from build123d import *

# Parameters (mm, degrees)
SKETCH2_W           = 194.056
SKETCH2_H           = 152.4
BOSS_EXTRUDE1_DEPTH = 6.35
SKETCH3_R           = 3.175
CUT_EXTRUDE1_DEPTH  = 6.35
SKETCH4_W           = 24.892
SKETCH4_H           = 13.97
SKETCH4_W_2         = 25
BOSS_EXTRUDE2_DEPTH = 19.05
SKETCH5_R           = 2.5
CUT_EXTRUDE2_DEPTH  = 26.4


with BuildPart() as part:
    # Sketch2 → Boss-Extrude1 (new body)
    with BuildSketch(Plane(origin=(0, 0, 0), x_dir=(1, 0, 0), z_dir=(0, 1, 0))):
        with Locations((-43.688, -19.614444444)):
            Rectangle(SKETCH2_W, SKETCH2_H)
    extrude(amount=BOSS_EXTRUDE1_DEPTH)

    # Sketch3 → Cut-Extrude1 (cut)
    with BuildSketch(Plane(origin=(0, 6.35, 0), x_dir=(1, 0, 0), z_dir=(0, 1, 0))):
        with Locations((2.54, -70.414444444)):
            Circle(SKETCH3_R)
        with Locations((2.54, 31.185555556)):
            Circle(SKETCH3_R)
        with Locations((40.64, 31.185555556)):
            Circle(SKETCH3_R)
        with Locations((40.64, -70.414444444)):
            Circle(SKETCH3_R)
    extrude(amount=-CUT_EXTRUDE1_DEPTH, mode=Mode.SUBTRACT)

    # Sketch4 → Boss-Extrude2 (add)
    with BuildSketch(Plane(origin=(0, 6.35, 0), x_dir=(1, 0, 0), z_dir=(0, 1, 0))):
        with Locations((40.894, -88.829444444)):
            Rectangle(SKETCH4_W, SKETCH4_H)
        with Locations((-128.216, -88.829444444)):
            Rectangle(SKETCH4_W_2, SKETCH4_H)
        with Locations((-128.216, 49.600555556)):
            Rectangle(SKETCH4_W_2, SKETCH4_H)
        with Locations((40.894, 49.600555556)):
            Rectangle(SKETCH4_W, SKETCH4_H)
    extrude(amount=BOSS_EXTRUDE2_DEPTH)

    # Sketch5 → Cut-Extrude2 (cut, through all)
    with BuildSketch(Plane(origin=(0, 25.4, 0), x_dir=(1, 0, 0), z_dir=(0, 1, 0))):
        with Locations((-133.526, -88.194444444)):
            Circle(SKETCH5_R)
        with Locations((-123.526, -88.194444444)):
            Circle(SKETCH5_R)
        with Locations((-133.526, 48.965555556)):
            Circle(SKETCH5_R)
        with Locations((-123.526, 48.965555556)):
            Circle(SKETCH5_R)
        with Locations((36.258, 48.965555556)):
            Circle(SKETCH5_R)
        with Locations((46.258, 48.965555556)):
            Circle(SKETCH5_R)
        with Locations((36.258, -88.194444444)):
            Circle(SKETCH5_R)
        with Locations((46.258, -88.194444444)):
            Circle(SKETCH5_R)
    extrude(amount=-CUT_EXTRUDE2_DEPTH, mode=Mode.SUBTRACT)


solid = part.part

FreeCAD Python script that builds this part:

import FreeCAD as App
import Part
import Sketcher
Q = App.Units.Quantity

doc = App.newDocument("Part")
params = doc.addObject("Spreadsheet::Sheet", "Params")
for row, (alias, value) in enumerate([
    ("sketch1_height", "6 in"),
    ("sketch1_width", "7.64 in"),
    ("pad1_length", "0.25 in"),
    ("sketch2_diameter", "0.25 in"),
    ("pocket1_length", "0.25 in"),
    ("sketch3_width", "0.98 in"),
    ("sketch3_height", "0.55 in"),
    ("pad2_length", "0.75 in"),
], start=1):
    params.set(f"A{row}", alias)
    params.set(f"B{row}", "=" + value)
    params.setAlias(f"B{row}", alias)

body = doc.addObject("PartDesign::Body", "Body")

sketch1 = body.newObject("Sketcher::SketchObject", "Sketch")
sketch1.AttachmentSupport = (doc.getObject("XZ_Plane"), [""])
sketch1.MapMode = "FlatFace"
sketch1.addGeometry(Part.LineSegment(App.Vector(-141, -57, 0), App.Vector(-141, 96, 0)), False)
sketch1.addGeometry(Part.LineSegment(App.Vector(-141, 96, 0), App.Vector(53, 96, 0)), False)
sketch1.addGeometry(Part.LineSegment(App.Vector(53, 96, 0), App.Vector(53, -57, 0)), False)
sketch1.addGeometry(Part.LineSegment(App.Vector(53, -57, 0), App.Vector(-141, -57, 0)), False)
sketch1.addConstraint(Sketcher.Constraint("Coincident", 0, 2, 1, 1))
sketch1.addConstraint(Sketcher.Constraint("Coincident", 1, 2, 2, 1))
sketch1.addConstraint(Sketcher.Constraint("Coincident", 2, 2, 3, 1))
sketch1.addConstraint(Sketcher.Constraint("Coincident", 3, 2, 0, 1))
sketch1.addConstraint(Sketcher.Constraint("Vertical", 0))
sketch1.addConstraint(Sketcher.Constraint("Horizontal", 1))
sketch1.addConstraint(Sketcher.Constraint("Vertical", 2))
sketch1.addConstraint(Sketcher.Constraint("Horizontal", 3))
sketch1.addConstraint(Sketcher.Constraint("DistanceY", 0, 1, 0, 2, Q("6 in")))
sketch1.addConstraint(Sketcher.Constraint("DistanceX", 1, 1, 1, 2, Q("7.64 in")))
sketch1.addConstraint(Sketcher.Constraint("DistanceX", -1, 1, 1, 2, Q("2.1 in")))
sketch1.addConstraint(Sketcher.Constraint("DistanceY", -1, 1, 0, 2, 95.814444))
sketch1.setExpression("Constraints[8]", "Params.sketch1_height")
sketch1.setExpression("Constraints[9]", "Params.sketch1_width")
pad1 = body.newObject("PartDesign::Pad", "Pad")
pad1.Profile = sketch1
pad1.setExpression("Length", "Params.pad1_length")
pad1.Reversed = True

sketch2 = body.newObject("Sketcher::SketchObject", "Sketch001")
sketch2.AttachmentSupport = (doc.getObject("XZ_Plane"), [""])
sketch2.MapMode = "FlatFace"
sketch2.AttachmentOffset = App.Placement(App.Vector(0, 0, -0.25 * 25.4), App.Rotation())
sketch2.addGeometry(Part.Circle(App.Vector(2.5, 70.4, 0), App.Vector(0, 0, 1), 3.2), False)
sketch2.addGeometry(Part.Circle(App.Vector(2.5, -31.2, 0), App.Vector(0, 0, 1), 3.2), False)
sketch2.addGeometry(Part.Circle(App.Vector(40.6, -31.2, 0), App.Vector(0, 0, 1), 3.2), False)
sketch2.addGeometry(Part.Circle(App.Vector(40.6, 70.4, 0), App.Vector(0, 0, 1), 3.2), False)
sketch2.addConstraint(Sketcher.Constraint("Equal", 0, 1))
sketch2.addConstraint(Sketcher.Constraint("Equal", 1, 2))
sketch2.addConstraint(Sketcher.Constraint("Equal", 2, 3))
sketch2.addConstraint(Sketcher.Constraint("Horizontal", 1, 3, 2, 3))
sketch2.addConstraint(Sketcher.Constraint("Horizontal", 0, 3, 3, 3))
sketch2.addConstraint(Sketcher.Constraint("Vertical", 0, 3, 1, 3))
sketch2.addConstraint(Sketcher.Constraint("Vertical", 2, 3, 3, 3))
sketch2.addConstraint(Sketcher.Constraint("Diameter", 0, Q("0.25 in")))
sketch2.addConstraint(Sketcher.Constraint("DistanceY", 1, 3, 0, 3, Q("4 in")))
sketch2.addConstraint(Sketcher.Constraint("DistanceX", -1, 1, 0, 3, Q("0.1 in")))
sketch2.addConstraint(Sketcher.Constraint("DistanceX", -1, 1, 2, 3, Q("1.6 in")))
sketch2.addConstraint(Sketcher.Constraint("DistanceY", -1, 1, 0, 3, 70.414444))
sketch2.setExpression("Constraints[7]", "Params.sketch2_diameter")
pocket1 = body.newObject("PartDesign::Pocket", "Pocket")
pocket1.Profile = sketch2
pocket1.setExpression("Length", "Params.pocket1_length")
pocket1.Reversed = True

sketch3 = body.newObject("Sketcher::SketchObject", "Sketch002")
sketch3.AttachmentSupport = (doc.getObject("XZ_Plane"), [""])
sketch3.MapMode = "FlatFace"
sketch3.AttachmentOffset = App.Placement(App.Vector(0, 0, -0.25 * 25.4), App.Rotation())
sketch3.addGeometry(Part.LineSegment(App.Vector(28, 82, 0), App.Vector(28, 96, 0)), False)
sketch3.addGeometry(Part.LineSegment(App.Vector(28, 96, 0), App.Vector(53, 96, 0)), False)
sketch3.addGeometry(Part.LineSegment(App.Vector(53, 96, 0), App.Vector(53, 82, 0)), False)
sketch3.addGeometry(Part.LineSegment(App.Vector(53, 82, 0), App.Vector(28, 82, 0)), False)
sketch3.addGeometry(Part.LineSegment(App.Vector(-141, 82, 0), App.Vector(-141, 96, 0)), False)
sketch3.addGeometry(Part.LineSegment(App.Vector(-141, 96, 0), App.Vector(-116, 96, 0)), False)
sketch3.addGeometry(Part.LineSegment(App.Vector(-116, 96, 0), App.Vector(-116, 82, 0)), False)
sketch3.addGeometry(Part.LineSegment(App.Vector(-116, 82, 0), App.Vector(-141, 82, 0)), False)
sketch3.addGeometry(Part.LineSegment(App.Vector(-141, -57, 0), App.Vector(-141, -43, 0)), False)
sketch3.addGeometry(Part.LineSegment(App.Vector(-141, -43, 0), App.Vector(-116, -43, 0)), False)
sketch3.addGeometry(Part.LineSegment(App.Vector(-116, -43, 0), App.Vector(-116, -57, 0)), False)
sketch3.addGeometry(Part.LineSegment(App.Vector(-116, -57, 0), App.Vector(-141, -57, 0)), False)
sketch3.addGeometry(Part.LineSegment(App.Vector(28, -57, 0), App.Vector(28, -43, 0)), False)
sketch3.addGeometry(Part.LineSegment(App.Vector(28, -43, 0), App.Vector(53, -43, 0)), False)
sketch3.addGeometry(Part.LineSegment(App.Vector(53, -43, 0), App.Vector(53, -57, 0)), False)
sketch3.addGeometry(Part.LineSegment(App.Vector(53, -57, 0), App.Vector(28, -57, 0)), False)
sketch3.addConstraint(Sketcher.Constraint("Coincident", 0, 2, 1, 1))
sketch3.addConstraint(Sketcher.Constraint("Coincident", 1, 2, 2, 1))
sketch3.addConstraint(Sketcher.Constraint("Coincident", 2, 2, 3, 1))
sketch3.addConstraint(Sketcher.Constraint("Coincident", 3, 2, 0, 1))
sketch3.addConstraint(Sketcher.Constraint("Coincident", 4, 2, 5, 1))
sketch3.addConstraint(Sketcher.Constraint("Coincident", 5, 2, 6, 1))
sketch3.addConstraint(Sketcher.Constraint("Coincident", 6, 2, 7, 1))
sketch3.addConstraint(Sketcher.Constraint("Coincident", 7, 2, 4, 1))
sketch3.addConstraint(Sketcher.Constraint("Coincident", 8, 2, 9, 1))
sketch3.addConstraint(Sketcher.Constraint("Coincident", 9, 2, 10, 1))
sketch3.addConstraint(Sketcher.Constraint("Coincident", 10, 2, 11, 1))
sketch3.addConstraint(Sketcher.Constraint("Coincident", 11, 2, 8, 1))
sketch3.addConstraint(Sketcher.Constraint("Coincident", 12, 2, 13, 1))
sketch3.addConstraint(Sketcher.Constraint("Coincident", 13, 2, 14, 1))
sketch3.addConstraint(Sketcher.Constraint("Coincident", 14, 2, 15, 1))
sketch3.addConstraint(Sketcher.Constraint("Coincident", 15, 2, 12, 1))
sketch3.addConstraint(Sketcher.Constraint("Vertical", 0))
sketch3.addConstraint(Sketcher.Constraint("Horizontal", 1))
sketch3.addConstraint(Sketcher.Constraint("Vertical", 2))
sketch3.addConstraint(Sketcher.Constraint("Horizontal", 3))
sketch3.addConstraint(Sketcher.Constraint("Vertical", 4))
sketch3.addConstraint(Sketcher.Constraint("Horizontal", 5))
sketch3.addConstraint(Sketcher.Constraint("Vertical", 6))
sketch3.addConstraint(Sketcher.Constraint("Horizontal", 7))
sketch3.addConstraint(Sketcher.Constraint("Vertical", 8))
sketch3.addConstraint(Sketcher.Constraint("Horizontal", 9))
sketch3.addConstraint(Sketcher.Constraint("Vertical", 10))
sketch3.addConstraint(Sketcher.Constraint("Horizontal", 11))
sketch3.addConstraint(Sketcher.Constraint("Vertical", 12))
sketch3.addConstraint(Sketcher.Constraint("Horizontal", 13))
sketch3.addConstraint(Sketcher.Constraint("Vertical", 14))
sketch3.addConstraint(Sketcher.Constraint("Horizontal", 15))
sketch3.addConstraint(Sketcher.Constraint("Horizontal", 1, 2, 4, 2))
sketch3.addConstraint(Sketcher.Constraint("Horizontal", 3, 2, 6, 2))
sketch3.addConstraint(Sketcher.Constraint("Horizontal", 9, 2, 12, 2))
sketch3.addConstraint(Sketcher.Constraint("Horizontal", 11, 2, 14, 2))
sketch3.addConstraint(Sketcher.Constraint("Vertical", 7, 2, 8, 2))
sketch3.addConstraint(Sketcher.Constraint("Vertical", 6, 2, 9, 2))
sketch3.addConstraint(Sketcher.Constraint("Vertical", 3, 2, 12, 2))
sketch3.addConstraint(Sketcher.Constraint("Vertical", 2, 2, 13, 2))
sketch3.addConstraint(Sketcher.Constraint("Equal", 6, 8))
sketch3.addConstraint(Sketcher.Constraint("DistanceY", 10, 2, 5, 2, Q("6 in")))
sketch3.addConstraint(Sketcher.Constraint("DistanceX", 1, 1, 1, 2, Q("0.98 in")))
sketch3.addConstraint(Sketcher.Constraint("DistanceY", 0, 1, 0, 2, Q("0.55 in")))
sketch3.addConstraint(Sketcher.Constraint("DistanceX", -1, 1, 1, 2, Q("2.1 in")))
sketch3.addConstraint(Sketcher.Constraint("DistanceX", 4, 2, -1, 1, Q("5.54 in")))
sketch3.addConstraint(Sketcher.Constraint("DistanceX", 5, 1, 5, 2, 25.0))
sketch3.addConstraint(Sketcher.Constraint("DistanceY", -1, 1, 0, 2, 95.814444))
sketch3.setExpression("Constraints[42]", "Params.sketch3_width")
sketch3.setExpression("Constraints[43]", "Params.sketch3_height")
pad2 = body.newObject("PartDesign::Pad", "Pad001")
pad2.Profile = sketch3
pad2.setExpression("Length", "Params.pad2_length")
pad2.Reversed = True

sketch4 = body.newObject("Sketcher::SketchObject", "Sketch003")
sketch4.AttachmentSupport = (doc.getObject("XZ_Plane"), [""])
sketch4.MapMode = "FlatFace"
sketch4.AttachmentOffset = App.Placement(App.Vector(0, 0, -1 * 25.4), App.Rotation())
sketch4.addGeometry(Part.Circle(App.Vector(-133.5, 88.2, 0), App.Vector(0, 0, 1), 2.5), False)
sketch4.addGeometry(Part.Circle(App.Vector(-123.5, 88.2, 0), App.Vector(0, 0, 1), 2.5), False)
sketch4.addGeometry(Part.Circle(App.Vector(-133.5, -49, 0), App.Vector(0, 0, 1), 2.5), False)
sketch4.addGeometry(Part.Circle(App.Vector(-123.5, -49, 0), App.Vector(0, 0, 1), 2.5), False)
sketch4.addGeometry(Part.Circle(App.Vector(36.3, -49, 0), App.Vector(0, 0, 1), 2.5), False)
sketch4.addGeometry(Part.Circle(App.Vector(46.3, -49, 0), App.Vector(0, 0, 1), 2.5), False)
sketch4.addGeometry(Part.Circle(App.Vector(36.3, 88.2, 0), App.Vector(0, 0, 1), 2.5), False)
sketch4.addGeometry(Part.Circle(App.Vector(46.3, 88.2, 0), App.Vector(0, 0, 1), 2.5), False)
sketch4.addConstraint(Sketcher.Constraint("Equal", 0, 1))
sketch4.addConstraint(Sketcher.Constraint("Equal", 1, 2))
sketch4.addConstraint(Sketcher.Constraint("Equal", 2, 3))
sketch4.addConstraint(Sketcher.Constraint("Equal", 3, 4))
sketch4.addConstraint(Sketcher.Constraint("Equal", 4, 5))
sketch4.addConstraint(Sketcher.Constraint("Equal", 5, 6))
sketch4.addConstraint(Sketcher.Constraint("Equal", 6, 7))
sketch4.addConstraint(Sketcher.Constraint("Horizontal", 0, 3, 1, 3))
sketch4.addConstraint(Sketcher.Constraint("Horizontal", 2, 3, 3, 3))
sketch4.addConstraint(Sketcher.Constraint("Horizontal", 3, 3, 4, 3))
sketch4.addConstraint(Sketcher.Constraint("Horizontal", 4, 3, 5, 3))
sketch4.addConstraint(Sketcher.Constraint("Horizontal", 1, 3, 6, 3))
sketch4.addConstraint(Sketcher.Constraint("Horizontal", 6, 3, 7, 3))
sketch4.addConstraint(Sketcher.Constraint("Vertical", 0, 3, 2, 3))
sketch4.addConstraint(Sketcher.Constraint("Vertical", 1, 3, 3, 3))
sketch4.addConstraint(Sketcher.Constraint("Vertical", 4, 3, 6, 3))
sketch4.addConstraint(Sketcher.Constraint("Vertical", 5, 3, 7, 3))
sketch4.addConstraint(Sketcher.Constraint("DistanceY", 2, 3, 0, 3, Q("5.4 in")))
sketch4.addConstraint(Sketcher.Constraint("Diameter", 0, 5.0))
sketch4.addConstraint(Sketcher.Constraint("DistanceX", 0, 3, -1, 1, 133.526))
sketch4.addConstraint(Sketcher.Constraint("DistanceX", 1, 3, -1, 1, 123.526))
sketch4.addConstraint(Sketcher.Constraint("DistanceX", -1, 1, 4, 3, 36.258))
sketch4.addConstraint(Sketcher.Constraint("DistanceX", -1, 1, 5, 3, 46.258))
sketch4.addConstraint(Sketcher.Constraint("DistanceY", -1, 1, 0, 3, 88.194444))
pocket2 = body.newObject("PartDesign::Pocket", "Pocket001")
pocket2.Profile = sketch4
pocket2.Type = "ThroughAll"
pocket2.Reversed = True

doc.recompute()
